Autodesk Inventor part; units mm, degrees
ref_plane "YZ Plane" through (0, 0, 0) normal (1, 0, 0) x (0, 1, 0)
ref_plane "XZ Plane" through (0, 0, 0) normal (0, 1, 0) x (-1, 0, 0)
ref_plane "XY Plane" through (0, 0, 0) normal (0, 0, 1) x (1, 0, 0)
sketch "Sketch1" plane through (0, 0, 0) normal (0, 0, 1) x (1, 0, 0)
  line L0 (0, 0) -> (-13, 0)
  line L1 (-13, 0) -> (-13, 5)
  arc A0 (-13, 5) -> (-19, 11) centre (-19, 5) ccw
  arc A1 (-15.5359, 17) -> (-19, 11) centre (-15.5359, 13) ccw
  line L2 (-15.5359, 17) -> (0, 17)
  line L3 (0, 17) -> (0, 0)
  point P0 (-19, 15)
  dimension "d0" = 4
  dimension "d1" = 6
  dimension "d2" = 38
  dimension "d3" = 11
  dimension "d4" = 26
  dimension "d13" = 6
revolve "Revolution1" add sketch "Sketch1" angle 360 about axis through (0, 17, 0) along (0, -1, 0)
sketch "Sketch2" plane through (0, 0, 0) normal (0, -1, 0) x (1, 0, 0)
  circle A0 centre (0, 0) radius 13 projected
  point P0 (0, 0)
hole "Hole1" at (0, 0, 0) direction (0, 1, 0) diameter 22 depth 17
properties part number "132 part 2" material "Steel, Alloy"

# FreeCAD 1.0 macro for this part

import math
import FreeCAD as App
import Part
import Sketcher

V = App.Vector
Q = App.Units.Quantity

doc = App.newDocument("Part")
params = doc.addObject("Spreadsheet::Sheet", "Params")
for row, (alias, value) in enumerate([
    ("sketch1_radius", "4 mm"),
    ("sketch1_radius2", "6 mm"),
    ("sketch1_width", "13 mm"),
    ("revolution_angle", "360 deg"),
    ("sketch2_diameter", "22 mm"),
    ("hole_diameter", "22 mm"),
    ("hole_depth", "17 mm"),
], start=1):
    params.set(f"A{row}", alias)
    params.set(f"B{row}", "=" + value)
    params.setAlias(f"B{row}", alias)

body = doc.addObject("PartDesign::Body", "Body")

sketch1 = body.newObject("Sketcher::SketchObject", "Sketch")
sketch1.AttachmentSupport = (doc.getObject("XY_Plane"), [""])
sketch1.MapMode = "FlatFace"
sketch1.addGeometry([
    Part.LineSegment(V(-13, 0, 0), V(0, 0, 0)),
    Part.LineSegment(V(0, 0, 0), V(0, 17, 0)),
    Part.LineSegment(V(0, 17, 0), V(-15.5, 17, 0)),
    Part.ArcOfCircle(Part.Circle(V(-15.5, 13, 0), V(0, 0, 1), 4), math.radians(90), math.radians(210)),
    Part.ArcOfCircle(Part.Circle(V(-19, 5, 0), V(0, 0, 1), 6), math.radians(0), math.radians(90)),
    Part.LineSegment(V(-13, 5, 0), V(-13, 0, 0)),
], False)
sketch1.addConstraint([
    Sketcher.Constraint("Coincident", 0, 2, 1, 1),
    Sketcher.Constraint("Coincident", 1, 2, 2, 1),
    Sketcher.Constraint("Tangent", 2, 2, 3, 1),
    Sketcher.Constraint("Coincident", 3, 2, 4, 2),
    Sketcher.Constraint("Tangent", 4, 1, 5, 1),
    Sketcher.Constraint("Coincident", 5, 2, 0, 1),
    Sketcher.Constraint("Horizontal", 0),
    Sketcher.Constraint("Vertical", 1),
    Sketcher.Constraint("Horizontal", 2),
    Sketcher.Constraint("Vertical", 5),
    Sketcher.Constraint("Coincident", 0, 2, -1, 1),
    Sketcher.Constraint("Vertical", 4, 3, 3, 2),
    Sketcher.Constraint("Radius", 3, Q("4 mm")),
    Sketcher.Constraint("Radius", 4, Q("6 mm")),
    Sketcher.Constraint("DistanceY", -1, 1, 3, 2, Q("11 mm")),
    Sketcher.Constraint("DistanceY", 3, 2, 2, 2, Q("6 mm")),
    Sketcher.Constraint("DistanceX", 0, 1, 0, 2, Q("13 mm")),
])
sketch1.setExpression("Constraints[12]", "Params.sketch1_radius")
sketch1.setExpression("Constraints[13]", "Params.sketch1_radius2")
sketch1.setExpression("Constraints[16]", "Params.sketch1_width")
revolution = body.newObject("PartDesign::Revolution", "Revolution")
revolution.Profile = sketch1
revolution.ReferenceAxis = (sketch1, ["V_Axis"])
revolution.setExpression("Angle", "Params.revolution_angle")

sketch2 = body.newObject("Sketcher::SketchObject", "Sketch001")
sketch2.AttachmentSupport = (doc.getObject("XZ_Plane"), [""])
sketch2.MapMode = "FlatFace"
sketch2.addGeometry(Part.Circle(V(0, 0, 0), V(0, 0, 1), 11), False)
sketch2.addConstraint([
    Sketcher.Constraint("Coincident", 0, 3, -1, 1),
    Sketcher.Constraint("Diameter", 0, Q("22 mm")),
])
sketch2.setExpression("Constraints[1]", "Params.sketch2_diameter")
doc.recompute()
hole = body.newObject("PartDesign::Hole", "Hole")
hole.Profile = sketch2
hole.ThreadType = "None"
hole.setExpression("Diameter", "Params.hole_diameter")
hole.DepthType = "Dimension"
hole.setExpression("Depth", "Params.hole_depth")
hole.DrillPoint = "Flat"

doc.recompute()
